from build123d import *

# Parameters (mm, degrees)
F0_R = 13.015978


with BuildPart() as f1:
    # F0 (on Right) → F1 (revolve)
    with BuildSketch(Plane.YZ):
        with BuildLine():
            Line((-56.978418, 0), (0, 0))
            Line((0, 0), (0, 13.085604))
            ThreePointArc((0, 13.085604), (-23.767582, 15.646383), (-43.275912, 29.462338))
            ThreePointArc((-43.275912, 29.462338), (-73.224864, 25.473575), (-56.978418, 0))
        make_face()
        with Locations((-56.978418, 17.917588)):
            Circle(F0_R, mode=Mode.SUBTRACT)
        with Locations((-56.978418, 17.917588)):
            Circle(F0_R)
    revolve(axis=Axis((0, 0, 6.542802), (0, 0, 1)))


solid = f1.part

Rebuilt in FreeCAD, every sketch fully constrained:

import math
import FreeCAD as App
import Part
import Sketcher
from FreeCAD import Vector

doc = App.newDocument("Part")
params = doc.addObject("Spreadsheet::Sheet", "Params")
for row, (alias, value) in enumerate([
    ("revolution_angle", "360 deg"),
], start=1):
    params.set(f"A{row}", alias)
    params.set(f"B{row}", "=" + value)
    params.setAlias(f"B{row}", alias)

body = doc.addObject("PartDesign::Body", "Body")

# Sketch on YZ plane
sketch1 = body.newObject("Sketcher::SketchObject", "Sketch")
sketch1.AttachmentSupport = (doc.getObject("YZ_Plane"), [""])
sketch1.MapMode = "FlatFace"
sketch1.addGeometry([
    Part.LineSegment(Vector(-57, 0, 0), Vector(0, 0, 0)),
    Part.LineSegment(Vector(0, 0, 0), Vector(0, 13, 0)),
    Part.ArcOfCircle(Part.Circle(Vector(-7, 60, 0), Vector(0, 0, 1), 47), math.radians(-140), math.radians(-82)),
    Part.ArcOfCircle(Part.Circle(Vector(-57, 18, 0), Vector(0, 0, 1), 18), math.radians(40), math.radians(270)),
], False)
sketch1.addConstraint([
    Sketcher.Constraint("Coincident", 0, 2, 1, 1),
    Sketcher.Constraint("Coincident", 1, 2, 2, 2),
    Sketcher.Constraint("Tangent", 2, 1, 3, 1),
    Sketcher.Constraint("Tangent", 3, 2, 0, 1),
    Sketcher.Constraint("Horizontal", 0),
    Sketcher.Constraint("Vertical", 1),
    Sketcher.Constraint("Coincident", 0, 2, -1, 1),
    Sketcher.Constraint("Radius", 2, 47.486248),
    Sketcher.Constraint("Radius", 3, 17.917588),
    Sketcher.Constraint("DistanceX", 0, 1, 0, 2, 56.978418),
    Sketcher.Constraint("DistanceY", 1, 1, 1, 2, 13.085604),
])
revolution = body.newObject("PartDesign::Revolution", "Revolution")
revolution.Profile = sketch1
revolution.ReferenceAxis = (sketch1, ["V_Axis"])
revolution.setExpression("Angle", "Params.revolution_angle")

doc.recompute()
